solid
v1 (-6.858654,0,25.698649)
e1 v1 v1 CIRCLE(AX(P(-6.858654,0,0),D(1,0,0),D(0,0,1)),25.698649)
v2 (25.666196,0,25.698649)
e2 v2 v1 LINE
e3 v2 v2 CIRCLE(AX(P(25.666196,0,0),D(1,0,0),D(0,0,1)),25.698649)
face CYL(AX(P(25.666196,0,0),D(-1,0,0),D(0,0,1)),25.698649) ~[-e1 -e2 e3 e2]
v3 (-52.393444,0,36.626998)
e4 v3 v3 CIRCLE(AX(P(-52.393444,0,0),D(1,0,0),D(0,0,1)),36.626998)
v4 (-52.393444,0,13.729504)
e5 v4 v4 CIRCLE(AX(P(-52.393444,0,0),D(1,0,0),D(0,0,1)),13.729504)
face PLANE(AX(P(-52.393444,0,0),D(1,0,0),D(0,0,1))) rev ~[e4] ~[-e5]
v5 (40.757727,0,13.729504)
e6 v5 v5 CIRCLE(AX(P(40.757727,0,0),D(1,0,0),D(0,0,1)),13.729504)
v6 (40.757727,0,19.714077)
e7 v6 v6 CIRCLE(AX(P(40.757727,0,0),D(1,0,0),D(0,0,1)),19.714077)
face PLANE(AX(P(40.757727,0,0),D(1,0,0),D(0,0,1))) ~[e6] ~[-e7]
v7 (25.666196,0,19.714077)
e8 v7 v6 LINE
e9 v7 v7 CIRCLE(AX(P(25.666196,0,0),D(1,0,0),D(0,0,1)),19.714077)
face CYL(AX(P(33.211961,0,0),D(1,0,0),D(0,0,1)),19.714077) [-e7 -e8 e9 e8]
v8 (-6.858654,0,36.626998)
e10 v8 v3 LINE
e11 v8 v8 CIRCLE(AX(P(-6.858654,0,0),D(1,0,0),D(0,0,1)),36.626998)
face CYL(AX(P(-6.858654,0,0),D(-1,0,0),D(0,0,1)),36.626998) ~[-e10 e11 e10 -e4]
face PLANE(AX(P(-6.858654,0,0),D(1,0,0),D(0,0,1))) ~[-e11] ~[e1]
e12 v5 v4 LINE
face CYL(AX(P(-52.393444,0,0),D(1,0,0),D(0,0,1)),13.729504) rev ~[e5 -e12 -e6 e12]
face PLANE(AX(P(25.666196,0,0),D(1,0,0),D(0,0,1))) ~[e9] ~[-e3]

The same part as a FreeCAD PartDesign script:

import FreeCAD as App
import Part
import Sketcher
from FreeCAD import Vector
Q = App.Units.Quantity

doc = App.newDocument("Part")
body = doc.addObject("PartDesign::Body", "Body")

# Sketch on XZ plane
sketch1 = body.newObject("Sketcher::SketchObject", "Sketch")
sketch1.AttachmentSupport = (doc.getObject("XZ_Plane"), [""])
sketch1.MapMode = "FlatFace"
sketch1.addGeometry(Part.LineSegment(Vector(-7, 37, 0), Vector(-52, 37, 0)), False)
sketch1.addGeometry(Part.LineSegment(Vector(-52, 37, 0), Vector(-52, 14, 0)), False)
sketch1.addGeometry(Part.LineSegment(Vector(-52, 14, 0), Vector(-18, 14, 0)), False)
sketch1.addGeometry(Part.LineSegment(Vector(-18, 14, 0), Vector(-7, 14, 0)), False)
sketch1.addGeometry(Part.LineSegment(Vector(-7, 14, 0), Vector(41, 14, 0)), False)
sketch1.addGeometry(Part.LineSegment(Vector(41, 14, 0), Vector(41, 20, 0)), False)
sketch1.addGeometry(Part.LineSegment(Vector(41, 20, 0), Vector(26, 20, 0)), False)
sketch1.addGeometry(Part.LineSegment(Vector(26, 20, 0), Vector(26, 26, 0)), False)
sketch1.addGeometry(Part.LineSegment(Vector(26, 26, 0), Vector(-7, 26, 0)), False)
sketch1.addGeometry(Part.LineSegment(Vector(-7, 26, 0), Vector(-7, 37, 0)), False)
sketch1.addConstraint(Sketcher.Constraint("Coincident", 0, 2, 1, 1))
sketch1.addConstraint(Sketcher.Constraint("Coincident", 1, 2, 2, 1))
sketch1.addConstraint(Sketcher.Constraint("Coincident", 2, 2, 3, 1))
sketch1.addConstraint(Sketcher.Constraint("Coincident", 3, 2, 4, 1))
sketch1.addConstraint(Sketcher.Constraint("Coincident", 4, 2, 5, 1))
sketch1.addConstraint(Sketcher.Constraint("Coincident", 5, 2, 6, 1))
sketch1.addConstraint(Sketcher.Constraint("Coincident", 6, 2, 7, 1))
sketch1.addConstraint(Sketcher.Constraint("Coincident", 7, 2, 8, 1))
sketch1.addConstraint(Sketcher.Constraint("Coincident", 8, 2, 9, 1))
sketch1.addConstraint(Sketcher.Constraint("Coincident", 9, 2, 0, 1))
sketch1.addConstraint(Sketcher.Constraint("Horizontal", 0))
sketch1.addConstraint(Sketcher.Constraint("Vertical", 1))
sketch1.addConstraint(Sketcher.Constraint("Horizontal", 2))
sketch1.addConstraint(Sketcher.Constraint("Horizontal", 3))
sketch1.addConstraint(Sketcher.Constraint("Horizontal", 4))
sketch1.addConstraint(Sketcher.Constraint("Vertical", 5))
sketch1.addConstraint(Sketcher.Constraint("Horizontal", 6))
sketch1.addConstraint(Sketcher.Constraint("Vertical", 7))
sketch1.addConstraint(Sketcher.Constraint("Horizontal", 8))
sketch1.addConstraint(Sketcher.Constraint("Vertical", 9))
sketch1.addConstraint(Sketcher.Constraint("Vertical", 3, 2, 8, 2))
sketch1.addConstraint(Sketcher.Constraint("Equal", 5, 7))
sketch1.addConstraint(Sketcher.Constraint("DistanceY", -1, 1, 0, 2, Q("36.626998 mm")))
sketch1.addConstraint(Sketcher.Constraint("DistanceX", 0, 2, 0, 1, Q("45.53479 mm")))
sketch1.addConstraint(Sketcher.Constraint("DistanceX", 2, 1, 2, 2, Q("34.086041 mm")))
sketch1.addConstraint(Sketcher.Constraint("DistanceX", 4, 1, 4, 2, Q("47.616381 mm")))
sketch1.addConstraint(Sketcher.Constraint("DistanceX", 6, 2, 6, 1, Q("15.091531 mm")))
sketch1.addConstraint(Sketcher.Constraint("DistanceY", 9, 1, 9, 2, Q("10.92835 mm")))
sketch1.addConstraint(Sketcher.Constraint("DistanceY", 1, 2, 1, 1, Q("22.897494 mm")))
sketch1.addConstraint(Sketcher.Constraint("DistanceX", 0, 2, -1, 1, Q("52.393444 mm")))
revolution = body.newObject("PartDesign::Revolution", "Revolution")
revolution.Profile = sketch1
revolution.ReferenceAxis = (sketch1, ["H_Axis"])
revolution.Angle = 360

doc.recompute()
